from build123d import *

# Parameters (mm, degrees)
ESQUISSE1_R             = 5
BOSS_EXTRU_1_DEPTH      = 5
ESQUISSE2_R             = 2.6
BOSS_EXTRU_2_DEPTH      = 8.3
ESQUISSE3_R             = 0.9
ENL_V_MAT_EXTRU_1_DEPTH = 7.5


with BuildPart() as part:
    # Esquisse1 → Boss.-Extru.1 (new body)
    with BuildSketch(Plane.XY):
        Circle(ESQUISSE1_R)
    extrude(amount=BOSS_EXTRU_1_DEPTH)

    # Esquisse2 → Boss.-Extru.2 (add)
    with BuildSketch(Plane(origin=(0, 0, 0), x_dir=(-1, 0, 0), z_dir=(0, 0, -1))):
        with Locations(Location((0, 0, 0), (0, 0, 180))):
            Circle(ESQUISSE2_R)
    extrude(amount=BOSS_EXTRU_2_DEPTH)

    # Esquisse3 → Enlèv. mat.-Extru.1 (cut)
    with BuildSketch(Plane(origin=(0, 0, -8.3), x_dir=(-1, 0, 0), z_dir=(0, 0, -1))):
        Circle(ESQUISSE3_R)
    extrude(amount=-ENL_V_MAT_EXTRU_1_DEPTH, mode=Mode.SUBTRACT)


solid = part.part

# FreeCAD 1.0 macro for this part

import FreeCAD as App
import Part
import Sketcher
from FreeCAD import Vector
Q = App.Units.Quantity

doc = App.newDocument("Part")
body = doc.addObject("PartDesign::Body", "Body")

sketch1 = body.newObject("Sketcher::SketchObject", "Sketch")
sketch1.AttachmentSupport = (doc.getObject("XY_Plane"), [""])
sketch1.MapMode = "FlatFace"
sketch1.addGeometry(Part.Circle(Vector(0, 0, 0), Vector(0, 0, 1), 5), False)
sketch1.addConstraint([
    Sketcher.Constraint("Coincident", 0, 3, -1, 1),
    Sketcher.Constraint("Diameter", 0, Q("10 mm")),
])
pad1 = body.newObject("PartDesign::Pad", "Pad")
pad1.Profile = sketch1
pad1.Length = 5

sketch2 = body.newObject("Sketcher::SketchObject", "Sketch001")
sketch2.AttachmentSupport = (doc.getObject("XY_Plane"), [""])
sketch2.MapMode = "FlatFace"
sketch2.addGeometry(Part.Circle(Vector(0, 0, 0), Vector(0, 0, 1), 2.6), False)
sketch2.addConstraint([
    Sketcher.Constraint("Coincident", 0, 3, -1, 1),
    Sketcher.Constraint("Diameter", 0, Q("5.2 mm")),
])
pad2 = body.newObject("PartDesign::Pad", "Pad001")
pad2.Profile = sketch2
pad2.Length = 8.3
pad2.Reversed = True

sketch3 = body.newObject("Sketcher::SketchObject", "Sketch002")
sketch3.AttachmentSupport = (doc.getObject("XY_Plane"), [""])
sketch3.MapMode = "FlatFace"
sketch3.AttachmentOffset = App.Placement(Vector(0, 0, -8.3), App.Rotation())
sketch3.addGeometry(Part.Circle(Vector(0, 0, 0), Vector(0, 0, 1), 0.9), False)
sketch3.addConstraint([
    Sketcher.Constraint("Coincident", 0, 3, -1, 1),
    Sketcher.Constraint("Diameter", 0, Q("1.8 mm")),
])
pocket1 = body.newObject("PartDesign::Pocket", "Pocket")
pocket1.Profile = sketch3
pocket1.Length = 7.5
pocket1.Reversed = True

doc.recompute()
